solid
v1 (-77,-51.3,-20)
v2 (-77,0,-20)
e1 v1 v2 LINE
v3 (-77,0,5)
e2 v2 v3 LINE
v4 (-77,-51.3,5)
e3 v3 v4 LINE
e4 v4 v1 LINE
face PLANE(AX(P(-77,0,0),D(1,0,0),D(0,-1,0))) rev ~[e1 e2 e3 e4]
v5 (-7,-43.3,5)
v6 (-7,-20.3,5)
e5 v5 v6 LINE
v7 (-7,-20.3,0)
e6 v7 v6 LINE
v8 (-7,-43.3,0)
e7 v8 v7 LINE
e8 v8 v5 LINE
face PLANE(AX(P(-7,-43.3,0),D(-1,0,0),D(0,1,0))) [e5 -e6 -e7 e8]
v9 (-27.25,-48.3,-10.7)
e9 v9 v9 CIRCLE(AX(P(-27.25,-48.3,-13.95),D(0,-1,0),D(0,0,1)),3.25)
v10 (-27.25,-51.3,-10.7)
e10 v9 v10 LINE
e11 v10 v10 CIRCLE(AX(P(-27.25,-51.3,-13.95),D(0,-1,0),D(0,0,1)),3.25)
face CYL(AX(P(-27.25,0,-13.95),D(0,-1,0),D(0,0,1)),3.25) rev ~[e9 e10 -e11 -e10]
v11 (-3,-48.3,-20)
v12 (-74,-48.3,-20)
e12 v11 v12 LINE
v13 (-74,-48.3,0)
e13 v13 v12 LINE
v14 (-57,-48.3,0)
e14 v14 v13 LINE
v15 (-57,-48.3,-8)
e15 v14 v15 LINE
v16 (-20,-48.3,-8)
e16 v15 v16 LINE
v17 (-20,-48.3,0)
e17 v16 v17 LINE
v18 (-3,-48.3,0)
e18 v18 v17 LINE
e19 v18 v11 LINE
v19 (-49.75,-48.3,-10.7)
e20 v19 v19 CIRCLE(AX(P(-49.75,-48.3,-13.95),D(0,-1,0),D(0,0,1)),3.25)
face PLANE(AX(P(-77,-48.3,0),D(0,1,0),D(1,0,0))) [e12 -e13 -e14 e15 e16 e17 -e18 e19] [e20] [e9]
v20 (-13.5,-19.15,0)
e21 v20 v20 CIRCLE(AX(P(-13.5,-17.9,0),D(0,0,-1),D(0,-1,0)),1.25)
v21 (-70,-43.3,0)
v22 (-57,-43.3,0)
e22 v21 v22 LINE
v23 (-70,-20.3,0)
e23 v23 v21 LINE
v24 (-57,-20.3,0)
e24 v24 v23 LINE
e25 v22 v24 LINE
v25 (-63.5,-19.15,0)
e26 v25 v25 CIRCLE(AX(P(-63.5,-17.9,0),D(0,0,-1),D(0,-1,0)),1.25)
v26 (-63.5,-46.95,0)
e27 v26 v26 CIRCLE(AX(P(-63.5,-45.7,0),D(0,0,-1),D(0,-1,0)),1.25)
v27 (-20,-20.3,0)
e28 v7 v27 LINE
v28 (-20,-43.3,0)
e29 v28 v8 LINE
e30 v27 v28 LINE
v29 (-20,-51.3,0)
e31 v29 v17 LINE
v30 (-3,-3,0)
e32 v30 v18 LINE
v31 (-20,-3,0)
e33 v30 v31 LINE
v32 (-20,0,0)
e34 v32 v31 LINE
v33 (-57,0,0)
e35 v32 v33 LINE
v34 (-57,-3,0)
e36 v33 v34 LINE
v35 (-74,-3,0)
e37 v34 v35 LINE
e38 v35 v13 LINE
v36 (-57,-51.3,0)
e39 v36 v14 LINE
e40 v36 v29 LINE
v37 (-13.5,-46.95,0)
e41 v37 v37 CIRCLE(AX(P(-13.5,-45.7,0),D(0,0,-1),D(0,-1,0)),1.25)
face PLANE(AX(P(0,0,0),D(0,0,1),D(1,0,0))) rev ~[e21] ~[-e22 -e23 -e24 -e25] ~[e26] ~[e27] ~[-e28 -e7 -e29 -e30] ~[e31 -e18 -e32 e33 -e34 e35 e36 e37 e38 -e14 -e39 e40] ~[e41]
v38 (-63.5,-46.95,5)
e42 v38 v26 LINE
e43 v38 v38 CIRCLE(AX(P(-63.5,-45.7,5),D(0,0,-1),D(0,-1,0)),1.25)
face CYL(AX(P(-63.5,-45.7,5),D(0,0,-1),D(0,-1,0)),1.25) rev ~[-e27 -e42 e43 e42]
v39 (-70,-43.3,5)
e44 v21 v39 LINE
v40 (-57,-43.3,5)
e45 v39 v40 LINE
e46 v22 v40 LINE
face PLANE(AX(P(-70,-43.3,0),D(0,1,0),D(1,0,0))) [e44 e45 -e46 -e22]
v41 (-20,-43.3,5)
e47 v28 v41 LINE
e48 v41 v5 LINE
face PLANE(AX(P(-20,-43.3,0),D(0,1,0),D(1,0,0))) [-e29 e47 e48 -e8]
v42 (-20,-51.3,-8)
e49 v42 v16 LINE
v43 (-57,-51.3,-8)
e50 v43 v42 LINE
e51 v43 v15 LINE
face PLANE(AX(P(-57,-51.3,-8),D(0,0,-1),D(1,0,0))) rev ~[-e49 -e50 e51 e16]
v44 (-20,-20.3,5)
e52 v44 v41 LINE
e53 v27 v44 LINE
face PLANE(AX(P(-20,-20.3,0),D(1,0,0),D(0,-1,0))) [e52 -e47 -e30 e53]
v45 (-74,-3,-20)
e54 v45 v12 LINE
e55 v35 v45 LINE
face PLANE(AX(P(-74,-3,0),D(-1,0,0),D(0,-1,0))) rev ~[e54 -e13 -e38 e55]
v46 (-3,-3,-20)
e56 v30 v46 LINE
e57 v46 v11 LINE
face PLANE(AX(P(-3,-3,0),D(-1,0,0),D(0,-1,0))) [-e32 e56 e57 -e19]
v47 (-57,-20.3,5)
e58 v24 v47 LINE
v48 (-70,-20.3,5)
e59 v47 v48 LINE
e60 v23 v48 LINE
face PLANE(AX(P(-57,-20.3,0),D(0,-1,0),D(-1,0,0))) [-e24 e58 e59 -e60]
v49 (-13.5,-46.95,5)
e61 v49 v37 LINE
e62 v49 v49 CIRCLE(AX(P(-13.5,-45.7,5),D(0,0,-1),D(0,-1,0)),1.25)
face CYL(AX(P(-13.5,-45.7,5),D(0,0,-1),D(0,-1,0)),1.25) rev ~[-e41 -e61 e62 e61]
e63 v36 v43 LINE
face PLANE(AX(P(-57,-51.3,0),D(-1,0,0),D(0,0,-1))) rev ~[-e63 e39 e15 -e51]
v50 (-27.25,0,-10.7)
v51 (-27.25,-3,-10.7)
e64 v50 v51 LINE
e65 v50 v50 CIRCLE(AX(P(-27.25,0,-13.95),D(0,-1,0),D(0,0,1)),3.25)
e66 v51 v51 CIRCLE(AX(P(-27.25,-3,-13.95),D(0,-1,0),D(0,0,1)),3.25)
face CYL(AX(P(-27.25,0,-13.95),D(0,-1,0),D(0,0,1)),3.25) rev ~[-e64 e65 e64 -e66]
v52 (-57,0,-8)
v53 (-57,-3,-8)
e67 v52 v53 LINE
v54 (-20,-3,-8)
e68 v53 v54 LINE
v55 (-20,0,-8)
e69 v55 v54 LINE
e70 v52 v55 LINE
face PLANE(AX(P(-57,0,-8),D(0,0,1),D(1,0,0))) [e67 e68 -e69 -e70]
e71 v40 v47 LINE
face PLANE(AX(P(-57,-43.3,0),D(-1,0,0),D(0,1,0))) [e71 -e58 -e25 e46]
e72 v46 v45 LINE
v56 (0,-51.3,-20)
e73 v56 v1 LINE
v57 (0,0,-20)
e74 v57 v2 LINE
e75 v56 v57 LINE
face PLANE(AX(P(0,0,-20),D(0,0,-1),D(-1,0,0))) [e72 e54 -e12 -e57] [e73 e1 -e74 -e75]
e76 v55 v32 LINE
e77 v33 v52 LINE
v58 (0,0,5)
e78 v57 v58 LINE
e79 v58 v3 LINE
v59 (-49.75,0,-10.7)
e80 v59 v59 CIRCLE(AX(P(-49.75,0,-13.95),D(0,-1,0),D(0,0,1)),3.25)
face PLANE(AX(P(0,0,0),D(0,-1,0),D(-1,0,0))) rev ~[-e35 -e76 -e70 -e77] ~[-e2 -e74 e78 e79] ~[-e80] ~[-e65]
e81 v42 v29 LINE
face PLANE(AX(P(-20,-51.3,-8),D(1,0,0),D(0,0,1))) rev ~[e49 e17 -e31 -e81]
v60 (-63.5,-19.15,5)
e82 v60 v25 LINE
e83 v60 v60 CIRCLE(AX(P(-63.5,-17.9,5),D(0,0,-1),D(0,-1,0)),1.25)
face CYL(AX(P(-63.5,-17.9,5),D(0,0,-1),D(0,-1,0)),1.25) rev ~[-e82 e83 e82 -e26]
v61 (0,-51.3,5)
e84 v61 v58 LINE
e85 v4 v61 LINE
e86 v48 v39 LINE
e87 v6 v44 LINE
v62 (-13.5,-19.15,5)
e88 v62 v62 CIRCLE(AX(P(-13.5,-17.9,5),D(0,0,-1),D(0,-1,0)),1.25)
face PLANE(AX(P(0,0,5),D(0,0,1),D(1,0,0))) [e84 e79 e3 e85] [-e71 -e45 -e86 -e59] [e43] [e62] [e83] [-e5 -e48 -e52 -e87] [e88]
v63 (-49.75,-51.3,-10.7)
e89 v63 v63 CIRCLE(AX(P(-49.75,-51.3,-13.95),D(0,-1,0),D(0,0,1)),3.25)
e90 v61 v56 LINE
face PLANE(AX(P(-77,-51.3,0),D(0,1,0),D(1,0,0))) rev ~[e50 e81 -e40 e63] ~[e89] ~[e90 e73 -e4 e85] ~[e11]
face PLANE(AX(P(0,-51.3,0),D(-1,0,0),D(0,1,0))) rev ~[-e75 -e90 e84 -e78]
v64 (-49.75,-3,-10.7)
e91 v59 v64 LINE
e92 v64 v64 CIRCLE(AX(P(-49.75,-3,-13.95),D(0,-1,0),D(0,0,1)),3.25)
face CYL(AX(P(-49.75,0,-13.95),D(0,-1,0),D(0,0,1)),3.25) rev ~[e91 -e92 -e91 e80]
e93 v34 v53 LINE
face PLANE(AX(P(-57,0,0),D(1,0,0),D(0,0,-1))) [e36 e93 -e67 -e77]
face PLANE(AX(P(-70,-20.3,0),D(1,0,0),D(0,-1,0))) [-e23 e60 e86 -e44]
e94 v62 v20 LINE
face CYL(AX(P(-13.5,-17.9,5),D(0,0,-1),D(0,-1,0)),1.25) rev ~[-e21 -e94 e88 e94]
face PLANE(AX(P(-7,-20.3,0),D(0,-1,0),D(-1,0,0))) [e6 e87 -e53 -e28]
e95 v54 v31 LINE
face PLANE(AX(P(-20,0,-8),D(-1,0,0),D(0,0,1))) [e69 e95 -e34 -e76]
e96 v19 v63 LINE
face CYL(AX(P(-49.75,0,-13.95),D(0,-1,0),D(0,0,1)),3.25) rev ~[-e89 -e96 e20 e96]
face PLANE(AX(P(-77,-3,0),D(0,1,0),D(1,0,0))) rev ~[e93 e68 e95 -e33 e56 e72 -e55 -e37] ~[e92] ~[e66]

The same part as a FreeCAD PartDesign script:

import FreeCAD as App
import Part
import Sketcher

V = App.Vector

doc = App.newDocument("Part")
body = doc.addObject("PartDesign::Body", "Body")

sketch1 = body.newObject("Sketcher::SketchObject", "Sketch")
sketch1.AttachmentSupport = (doc.getObject("XY_Plane"), [""])
sketch1.MapMode = "FlatFace"
sketch1.addGeometry([
    Part.LineSegment(V(0, -51, 0), V(0, 0, 0)),
    Part.LineSegment(V(0, 0, 0), V(-77, 0, 0)),
    Part.LineSegment(V(-77, 0, 0), V(-77, -51, 0)),
    Part.LineSegment(V(-77, -51, 0), V(0, -51, 0)),
    Part.LineSegment(V(-70, -20, 0), V(-57, -20, 0)),
    Part.LineSegment(V(-57, -20, 0), V(-57, -43, 0)),
    Part.LineSegment(V(-57, -43, 0), V(-70, -43, 0)),
    Part.LineSegment(V(-70, -43, 0), V(-70, -20, 0)),
    Part.LineSegment(V(-20, -20, 0), V(-7, -20, 0)),
    Part.LineSegment(V(-7, -20, 0), V(-7, -43, 0)),
    Part.LineSegment(V(-7, -43, 0), V(-20, -43, 0)),
    Part.LineSegment(V(-20, -43, 0), V(-20, -20, 0)),
], False)
sketch1.addConstraint([
    Sketcher.Constraint("Coincident", 0, 2, 1, 1),
    Sketcher.Constraint("Coincident", 1, 2, 2, 1),
    Sketcher.Constraint("Coincident", 2, 2, 3, 1),
    Sketcher.Constraint("Coincident", 3, 2, 0, 1),
    Sketcher.Constraint("Coincident", 4, 2, 5, 1),
    Sketcher.Constraint("Coincident", 5, 2, 6, 1),
    Sketcher.Constraint("Coincident", 6, 2, 7, 1),
    Sketcher.Constraint("Coincident", 7, 2, 4, 1),
    Sketcher.Constraint("Coincident", 8, 2, 9, 1),
    Sketcher.Constraint("Coincident", 9, 2, 10, 1),
    Sketcher.Constraint("Coincident", 10, 2, 11, 1),
    Sketcher.Constraint("Coincident", 11, 2, 8, 1),
    Sketcher.Constraint("Vertical", 0),
    Sketcher.Constraint("Horizontal", 1),
    Sketcher.Constraint("Vertical", 2),
    Sketcher.Constraint("Horizontal", 3),
    Sketcher.Constraint("Horizontal", 4),
    Sketcher.Constraint("Vertical", 5),
    Sketcher.Constraint("Horizontal", 6),
    Sketcher.Constraint("Vertical", 7),
    Sketcher.Constraint("Horizontal", 8),
    Sketcher.Constraint("Vertical", 9),
    Sketcher.Constraint("Horizontal", 10),
    Sketcher.Constraint("Vertical", 11),
    Sketcher.Constraint("Coincident", 0, 2, -1, 1),
    Sketcher.Constraint("Horizontal", 7, 2, 8, 2),
    Sketcher.Constraint("Horizontal", 6, 2, 9, 2),
    Sketcher.Constraint("Equal", 6, 8),
    Sketcher.Constraint("DistanceX", 4, 1, 4, 2, 13.0),
    Sketcher.Constraint("DistanceY", 5, 2, 5, 1, 23.0),
    Sketcher.Constraint("DistanceY", 0, 1, 0, 2, 51.3),
    Sketcher.Constraint("DistanceX", 8, 2, -1, 1, 7.0),
    Sketcher.Constraint("DistanceY", 2, 2, 5, 2, 8.0),
    Sketcher.Constraint("DistanceX", 2, 2, 6, 2, 7.0),
    Sketcher.Constraint("DistanceX", 4, 2, 8, 2, 50.0),
])
pad1 = body.newObject("PartDesign::Pad", "Pad")
pad1.Profile = sketch1
pad1.Length = 5

sketch2 = body.newObject("Sketcher::SketchObject", "Sketch001")
sketch2.AttachmentSupport = (doc.getObject("XY_Plane"), [""])
sketch2.MapMode = "FlatFace"
sketch2.AttachmentOffset = App.Placement(V(0, 0, 5), App.Rotation())
sketch2.addGeometry([
    Part.Circle(V(-13.5, -17.9, 0), V(0, 0, 1), 1.2),
    Part.Circle(V(-13.5, -45.7, 0), V(0, 0, 1), 1.2),
    Part.Circle(V(-63.5, -45.7, 0), V(0, 0, 1), 1.2),
    Part.Circle(V(-63.5, -17.9, 0), V(0, 0, 1), 1.2),
], False)
sketch2.addConstraint([
    Sketcher.Constraint("Equal", 0, 1),
    Sketcher.Constraint("Equal", 1, 2),
    Sketcher.Constraint("Equal", 2, 3),
    Sketcher.Constraint("Horizontal", 1, 3, 2, 3),
    Sketcher.Constraint("Horizontal", 0, 3, 3, 3),
    Sketcher.Constraint("Vertical", 0, 3, 1, 3),
    Sketcher.Constraint("Vertical", 2, 3, 3, 3),
    Sketcher.Constraint("Diameter", 0, 2.5),
    Sketcher.Constraint("DistanceX", 2, 3, 1, 3, 50.0),
    Sketcher.Constraint("DistanceX", 0, 3, -1, 1, 13.5),
    Sketcher.Constraint("DistanceY", 0, 3, -1, 1, 17.9),
    Sketcher.Constraint("DistanceY", 1, 3, -1, 1, 45.7),
])
doc.recompute()
hole = body.newObject("PartDesign::Hole", "Hole")
hole.Profile = sketch2
hole.ThreadType = "None"
hole.Diameter = 2.5
hole.DepthType = "ThroughAll"

sketch3 = body.newObject("Sketcher::SketchObject", "Sketch002")
sketch3.AttachmentSupport = (doc.getObject("XZ_Plane"), [""])
sketch3.MapMode = "FlatFace"
sketch3.addGeometry([
    Part.LineSegment(V(-20, 0, 0), V(0, 0, 0)),
    Part.LineSegment(V(0, 0, 0), V(0, -20, 0)),
    Part.LineSegment(V(0, -20, 0), V(-77, -20, 0)),
    Part.LineSegment(V(-77, -20, 0), V(-77, 0, 0)),
    Part.LineSegment(V(-77, 0, 0), V(-57, 0, 0)),
    Part.LineSegment(V(-57, 0, 0), V(-57, -8, 0)),
    Part.LineSegment(V(-57, -8, 0), V(-20, -8, 0)),
    Part.LineSegment(V(-20, -8, 0), V(-20, 0, 0)),
], False)
sketch3.addConstraint([
    Sketcher.Constraint("Coincident", 0, 2, 1, 1),
    Sketcher.Constraint("Coincident", 1, 2, 2, 1),
    Sketcher.Constraint("Coincident", 2, 2, 3, 1),
    Sketcher.Constraint("Coincident", 3, 2, 4, 1),
    Sketcher.Constraint("Coincident", 4, 2, 5, 1),
    Sketcher.Constraint("Coincident", 5, 2, 6, 1),
    Sketcher.Constraint("Coincident", 6, 2, 7, 1),
    Sketcher.Constraint("Coincident", 7, 2, 0, 1),
    Sketcher.Constraint("Horizontal", 0),
    Sketcher.Constraint("Vertical", 1),
    Sketcher.Constraint("Horizontal", 2),
    Sketcher.Constraint("Vertical", 3),
    Sketcher.Constraint("Horizontal", 4),
    Sketcher.Constraint("Vertical", 5),
    Sketcher.Constraint("Horizontal", 6),
    Sketcher.Constraint("Vertical", 7),
    Sketcher.Constraint("Coincident", 0, 2, -1, 1),
    Sketcher.Constraint("PointOnObject", 3, 2, -1),
    Sketcher.Constraint("Equal", 0, 4),
    Sketcher.Constraint("Equal", 4, 1),
    Sketcher.Constraint("DistanceX", 0, 1, 0, 2, 20.0),
    Sketcher.Constraint("DistanceY", 5, 2, 5, 1, 8.0),
    Sketcher.Constraint("DistanceX", 2, 2, 2, 1, 77.0),
])
pad2 = body.newObject("PartDesign::Pad", "Pad001")
pad2.Profile = sketch3
pad2.Length = 3

sketch4 = body.newObject("Sketcher::SketchObject", "Sketch003")
sketch4.AttachmentSupport = (doc.getObject("XZ_Plane"), [""])
sketch4.MapMode = "FlatFace"
sketch4.AttachmentOffset = App.Placement(V(0, 0, 51.3), App.Rotation())
sketch4.addGeometry([
    Part.LineSegment(V(-20, 0, 0), V(0, 0, 0)),
    Part.LineSegment(V(0, 0, 0), V(0, -20, 0)),
    Part.LineSegment(V(0, -20, 0), V(-77, -20, 0)),
    Part.LineSegment(V(-77, -20, 0), V(-77, 0, 0)),
    Part.LineSegment(V(-77, 0, 0), V(-57, 0, 0)),
    Part.LineSegment(V(-57, 0, 0), V(-57, -8, 0)),
    Part.LineSegment(V(-57, -8, 0), V(-20, -8, 0)),
    Part.LineSegment(V(-20, -8, 0), V(-20, 0, 0)),
], False)
sketch4.addConstraint([
    Sketcher.Constraint("Coincident", 0, 2, 1, 1),
    Sketcher.Constraint("Coincident", 1, 2, 2, 1),
    Sketcher.Constraint("Coincident", 2, 2, 3, 1),
    Sketcher.Constraint("Coincident", 3, 2, 4, 1),
    Sketcher.Constraint("Coincident", 4, 2, 5, 1),
    Sketcher.Constraint("Coincident", 5, 2, 6, 1),
    Sketcher.Constraint("Coincident", 6, 2, 7, 1),
    Sketcher.Constraint("Coincident", 7, 2, 0, 1),
    Sketcher.Constraint("Horizontal", 0),
    Sketcher.Constraint("Vertical", 1),
    Sketcher.Constraint("Horizontal", 2),
    Sketcher.Constraint("Vertical", 3),
    Sketcher.Constraint("Horizontal", 4),
    Sketcher.Constraint("Vertical", 5),
    Sketcher.Constraint("Horizontal", 6),
    Sketcher.Constraint("Vertical", 7),
    Sketcher.Constraint("Coincident", 0, 2, -1, 1),
    Sketcher.Constraint("PointOnObject", 3, 2, -1),
    Sketcher.Constraint("Equal", 0, 4),
    Sketcher.Constraint("Equal", 4, 1),
    Sketcher.Constraint("DistanceX", 0, 1, 0, 2, 20.0),
    Sketcher.Constraint("DistanceY", 5, 2, 5, 1, 8.0),
    Sketcher.Constraint("DistanceX", 2, 2, 2, 1, 77.0),
])
pad3 = body.newObject("PartDesign::Pad", "Pad002")
pad3.Profile = sketch4
pad3.Length = 3
pad3.Reversed = True

sketch5 = body.newObject("Sketcher::SketchObject", "Sketch004")
sketch5.AttachmentSupport = (doc.getObject("XY_Plane"), [""])
sketch5.MapMode = "FlatFace"
sketch5.addGeometry([
    Part.LineSegment(V(-3, -3, 0), V(0, -3, 0)),
    Part.LineSegment(V(0, -3, 0), V(0, -48.3, 0)),
    Part.LineSegment(V(0, -48.3, 0), V(-3, -48.3, 0)),
    Part.LineSegment(V(-3, -48.3, 0), V(-3, -3, 0)),
    Part.LineSegment(V(-77, -48.3, 0), V(-77, -3, 0)),
    Part.LineSegment(V(-77, -3, 0), V(-74, -3, 0)),
    Part.LineSegment(V(-74, -3, 0), V(-74, -48.3, 0)),
    Part.LineSegment(V(-74, -48.3, 0), V(-77, -48.3, 0)),
], False)
sketch5.addConstraint([
    Sketcher.Constraint("Coincident", 0, 2, 1, 1),
    Sketcher.Constraint("Coincident", 1, 2, 2, 1),
    Sketcher.Constraint("Coincident", 2, 2, 3, 1),
    Sketcher.Constraint("Coincident", 3, 2, 0, 1),
    Sketcher.Constraint("Coincident", 4, 2, 5, 1),
    Sketcher.Constraint("Coincident", 5, 2, 6, 1),
    Sketcher.Constraint("Coincident", 6, 2, 7, 1),
    Sketcher.Constraint("Coincident", 7, 2, 4, 1),
    Sketcher.Constraint("Horizontal", 0),
    Sketcher.Constraint("Vertical", 1),
    Sketcher.Constraint("Horizontal", 2),
    Sketcher.Constraint("Vertical", 3),
    Sketcher.Constraint("Vertical", 4),
    Sketcher.Constraint("Horizontal", 5),
    Sketcher.Constraint("Vertical", 6),
    Sketcher.Constraint("Horizontal", 7),
    Sketcher.Constraint("PointOnObject", 0, 2, -2),
    Sketcher.Constraint("Horizontal", 3, 2, 4, 2),
    Sketcher.Constraint("Horizontal", 2, 2, 6, 2),
    Sketcher.Constraint("Equal", 2, 5),
    Sketcher.Constraint("DistanceX", 0, 1, 0, 2, 3.0),
    Sketcher.Constraint("DistanceY", 0, 2, -1, 1, 3.0),
    Sketcher.Constraint("DistanceY", 1, 2, 1, 1, 45.3),
    Sketcher.Constraint("DistanceX", 4, 2, -1, 1, 77.0),
])
pad4 = body.newObject("PartDesign::Pad", "Pad003")
pad4.Profile = sketch5
pad4.Length = 20
pad4.Reversed = True

sketch6 = body.newObject("Sketcher::SketchObject", "Sketch005")
sketch6.AttachmentSupport = (doc.getObject("XZ_Plane"), [""])
sketch6.MapMode = "FlatFace"
sketch6.addGeometry([
    Part.Circle(V(-27.2, -13.9, 0), V(0, 0, 1), 3.2),
    Part.Circle(V(-49.8, -13.9, 0), V(0, 0, 1), 3.2),
], False)
sketch6.addConstraint([
    Sketcher.Constraint("Equal", 0, 1),
    Sketcher.Constraint("Horizontal", 0, 3, 1, 3),
    Sketcher.Constraint("Diameter", 0, 6.5),
    Sketcher.Constraint("DistanceX", 1, 3, 0, 3, 22.5),
    Sketcher.Constraint("DistanceX", 0, 3, -1, 1, 27.25),
    Sketcher.Constraint("DistanceY", 0, 3, -1, 1, 13.95),
])
doc.recompute()
hole2 = body.newObject("PartDesign::Hole", "Hole001")
hole2.Profile = sketch6
hole2.ThreadType = "None"
hole2.Diameter = 6.5
hole2.DepthType = "ThroughAll"
hole2.Reversed = True

doc.recompute()
